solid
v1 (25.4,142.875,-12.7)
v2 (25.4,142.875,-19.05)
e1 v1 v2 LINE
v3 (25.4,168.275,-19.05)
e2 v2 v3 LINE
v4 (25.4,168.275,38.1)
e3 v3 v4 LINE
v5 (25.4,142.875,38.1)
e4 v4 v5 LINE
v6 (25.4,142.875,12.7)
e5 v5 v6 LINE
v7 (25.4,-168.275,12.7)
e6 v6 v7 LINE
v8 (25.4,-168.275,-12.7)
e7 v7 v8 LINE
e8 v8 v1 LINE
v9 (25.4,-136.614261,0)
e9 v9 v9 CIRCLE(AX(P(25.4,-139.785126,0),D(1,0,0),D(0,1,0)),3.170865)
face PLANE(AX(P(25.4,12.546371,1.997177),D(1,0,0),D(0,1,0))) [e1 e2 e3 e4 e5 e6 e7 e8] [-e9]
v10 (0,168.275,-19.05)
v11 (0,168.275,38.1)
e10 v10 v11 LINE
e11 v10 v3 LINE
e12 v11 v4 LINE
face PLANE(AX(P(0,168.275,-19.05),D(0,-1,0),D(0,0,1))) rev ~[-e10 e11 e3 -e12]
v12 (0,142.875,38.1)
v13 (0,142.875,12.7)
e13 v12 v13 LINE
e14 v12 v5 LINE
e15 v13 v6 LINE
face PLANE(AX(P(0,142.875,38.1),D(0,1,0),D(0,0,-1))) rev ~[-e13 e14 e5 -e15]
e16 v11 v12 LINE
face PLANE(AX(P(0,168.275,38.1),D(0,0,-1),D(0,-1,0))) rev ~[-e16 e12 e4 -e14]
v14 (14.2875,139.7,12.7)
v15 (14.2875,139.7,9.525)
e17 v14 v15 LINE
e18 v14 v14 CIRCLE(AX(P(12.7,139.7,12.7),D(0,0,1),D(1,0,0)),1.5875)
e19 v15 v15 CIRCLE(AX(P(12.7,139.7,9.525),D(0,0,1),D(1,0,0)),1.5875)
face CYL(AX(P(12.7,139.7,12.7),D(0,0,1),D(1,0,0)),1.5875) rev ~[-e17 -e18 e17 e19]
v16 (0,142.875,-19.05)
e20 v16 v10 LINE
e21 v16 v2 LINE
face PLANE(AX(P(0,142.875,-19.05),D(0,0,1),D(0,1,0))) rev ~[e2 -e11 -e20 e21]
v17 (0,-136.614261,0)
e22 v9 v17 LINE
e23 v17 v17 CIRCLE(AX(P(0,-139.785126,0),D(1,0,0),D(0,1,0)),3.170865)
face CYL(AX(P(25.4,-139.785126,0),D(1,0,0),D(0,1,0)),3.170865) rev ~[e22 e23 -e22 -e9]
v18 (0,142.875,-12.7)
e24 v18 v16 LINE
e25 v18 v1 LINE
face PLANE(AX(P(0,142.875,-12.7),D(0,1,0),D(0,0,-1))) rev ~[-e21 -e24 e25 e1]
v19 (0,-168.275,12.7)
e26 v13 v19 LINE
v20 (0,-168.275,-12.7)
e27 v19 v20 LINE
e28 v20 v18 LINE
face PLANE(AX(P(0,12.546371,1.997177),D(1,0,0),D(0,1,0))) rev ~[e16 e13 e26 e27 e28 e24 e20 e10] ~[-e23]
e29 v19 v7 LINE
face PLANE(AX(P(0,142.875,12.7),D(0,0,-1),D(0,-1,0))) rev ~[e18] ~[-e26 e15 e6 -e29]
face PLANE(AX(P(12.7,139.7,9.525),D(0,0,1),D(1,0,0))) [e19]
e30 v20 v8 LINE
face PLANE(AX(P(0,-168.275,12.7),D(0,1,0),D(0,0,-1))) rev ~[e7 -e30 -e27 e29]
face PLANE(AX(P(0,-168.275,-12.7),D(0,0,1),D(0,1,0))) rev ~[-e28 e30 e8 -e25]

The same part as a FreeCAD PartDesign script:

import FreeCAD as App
import Part
import Sketcher
Q = App.Units.Quantity

doc = App.newDocument("Part")
body = doc.addObject("PartDesign::Body", "Body")

# Sketch on YZ plane
sketch1 = body.newObject("Sketcher::SketchObject", "Sketch")
sketch1.AttachmentSupport = (doc.getObject("YZ_Plane"), [""])
sketch1.MapMode = "FlatFace"
sketch1.addGeometry([
    Part.LineSegment(App.Vector(-168, -13, 0), App.Vector(143, -13, 0)),  # 0
    Part.LineSegment(App.Vector(143, -13, 0), App.Vector(143, -19, 0)),  # 1
    Part.LineSegment(App.Vector(143, -19, 0), App.Vector(168, -19, 0)),  # 2
    Part.LineSegment(App.Vector(168, -19, 0), App.Vector(168, 38, 0)),  # 3
    Part.LineSegment(App.Vector(168, 38, 0), App.Vector(143, 38, 0)),  # 4
    Part.LineSegment(App.Vector(143, 38, 0), App.Vector(143, 13, 0)),  # 5
    Part.LineSegment(App.Vector(143, 13, 0), App.Vector(-168, 13, 0)),  # 6
    Part.LineSegment(App.Vector(-168, 13, 0), App.Vector(-168, -13, 0)),  # 7
], False)
sketch1.addConstraint([
    Sketcher.Constraint("Coincident", 0, 2, 1, 1),
    Sketcher.Constraint("Coincident", 1, 2, 2, 1),
    Sketcher.Constraint("Coincident", 2, 2, 3, 1),
    Sketcher.Constraint("Coincident", 3, 2, 4, 1),
    Sketcher.Constraint("Coincident", 4, 2, 5, 1),
    Sketcher.Constraint("Coincident", 5, 2, 6, 1),
    Sketcher.Constraint("Coincident", 6, 2, 7, 1),
    Sketcher.Constraint("Coincident", 7, 2, 0, 1),
    Sketcher.Constraint("Horizontal", 0),
    Sketcher.Constraint("Vertical", 1),
    Sketcher.Constraint("Horizontal", 2),
    Sketcher.Constraint("Vertical", 3),
    Sketcher.Constraint("Horizontal", 4),
    Sketcher.Constraint("Vertical", 5),
    Sketcher.Constraint("Horizontal", 6),
    Sketcher.Constraint("Vertical", 7),
    Sketcher.Constraint("Symmetric", 0, 2, 5, 2, -1),
    Sketcher.Constraint("Equal", 4, 5),
    Sketcher.Constraint("Equal", 5, 7),
    Sketcher.Constraint("DistanceX", 2, 1, 2, 2, Q("1 in")),
    Sketcher.Constraint("DistanceX", 0, 1, 0, 2, Q("12.25 in")),
    Sketcher.Constraint("DistanceY", 1, 2, 1, 1, Q("0.25 in")),
    Sketcher.Constraint("DistanceX", -1, 1, 0, 2, Q("5.625 in")),
])
pad1 = body.newObject("PartDesign::Pad", "Pad")
pad1.Profile = sketch1
pad1.Length = Q("1 in")

# Sketch on YZ plane
sketch2 = body.newObject("Sketcher::SketchObject", "Sketch001")
sketch2.AttachmentSupport = (doc.getObject("YZ_Plane"), [""])
sketch2.MapMode = "FlatFace"
sketch2.AttachmentOffset = App.Placement(App.Vector(0, 0, 1 * 25.4), App.Rotation())
sketch2.addGeometry(Part.Circle(App.Vector(-139.8, 0, 0), App.Vector(0, 0, 1), 3.2), False)
sketch2.addConstraint([
    Sketcher.Constraint("PointOnObject", 0, 3, -1),
    Sketcher.Constraint("Diameter", 0, 6.34173),
    Sketcher.Constraint("DistanceX", 0, 3, -1, 1, 139.785126),
])
pocket1 = body.newObject("PartDesign::Pocket", "Pocket")
pocket1.Profile = sketch2
pocket1.Type = "ThroughAll"

# Sketch on XY plane
sketch3 = body.newObject("Sketcher::SketchObject", "Sketch002")
sketch3.AttachmentSupport = (doc.getObject("XY_Plane"), [""])
sketch3.MapMode = "FlatFace"
sketch3.AttachmentOffset = App.Placement(App.Vector(0, 0, 0.5 * 25.4), App.Rotation())
sketch3.addGeometry(Part.Circle(App.Vector(12.7, 139.7, 0), App.Vector(0, 0, 1), 1.6), False)
sketch3.addConstraint([
    Sketcher.Constraint("Diameter", 0, Q("0.125 in")),
    Sketcher.Constraint("DistanceX", -1, 1, 0, 3, Q("0.5 in")),
    Sketcher.Constraint("DistanceY", -1, 1, 0, 3, Q("5.5 in")),
])
pocket2 = body.newObject("PartDesign::Pocket", "Pocket001")
pocket2.Profile = sketch3
pocket2.Length = Q("0.125 in")

doc.recompute()
